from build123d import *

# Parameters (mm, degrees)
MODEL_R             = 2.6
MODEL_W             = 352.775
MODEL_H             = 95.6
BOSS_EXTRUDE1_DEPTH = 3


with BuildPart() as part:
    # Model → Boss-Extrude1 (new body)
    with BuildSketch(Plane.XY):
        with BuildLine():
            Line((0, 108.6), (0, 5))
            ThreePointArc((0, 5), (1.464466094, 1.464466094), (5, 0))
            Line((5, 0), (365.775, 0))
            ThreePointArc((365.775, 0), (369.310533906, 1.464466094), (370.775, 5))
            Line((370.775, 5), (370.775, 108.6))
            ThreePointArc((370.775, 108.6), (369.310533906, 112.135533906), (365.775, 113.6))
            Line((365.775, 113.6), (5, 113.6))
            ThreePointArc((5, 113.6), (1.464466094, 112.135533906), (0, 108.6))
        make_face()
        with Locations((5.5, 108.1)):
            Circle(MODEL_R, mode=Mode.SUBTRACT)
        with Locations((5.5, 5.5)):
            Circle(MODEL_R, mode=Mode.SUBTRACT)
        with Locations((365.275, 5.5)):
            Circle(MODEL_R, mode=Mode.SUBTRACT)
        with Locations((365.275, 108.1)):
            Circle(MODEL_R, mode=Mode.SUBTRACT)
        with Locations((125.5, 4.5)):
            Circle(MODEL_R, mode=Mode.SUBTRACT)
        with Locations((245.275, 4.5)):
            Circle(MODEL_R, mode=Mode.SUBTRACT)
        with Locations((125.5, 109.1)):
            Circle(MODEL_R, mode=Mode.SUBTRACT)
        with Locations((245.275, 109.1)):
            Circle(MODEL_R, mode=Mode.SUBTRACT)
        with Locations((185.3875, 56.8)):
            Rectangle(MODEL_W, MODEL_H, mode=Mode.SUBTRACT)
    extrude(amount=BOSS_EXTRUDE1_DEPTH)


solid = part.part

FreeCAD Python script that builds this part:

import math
import FreeCAD as App
import Part
import Sketcher
Q = App.Units.Quantity

doc = App.newDocument("Part")
body = doc.addObject("PartDesign::Body", "Body")

sketch1 = body.newObject("Sketcher::SketchObject", "Sketch")
sketch1.AttachmentSupport = (doc.getObject("XY_Plane"), [""])
sketch1.MapMode = "FlatFace"
sketch1.addGeometry([
    Part.LineSegment(App.Vector(0, 108.6, 0), App.Vector(0, 5, 0)),
    Part.ArcOfCircle(Part.Circle(App.Vector(5, 5, 0), App.Vector(0, 0, 1), 5), math.radians(180), math.radians(270)),
    Part.LineSegment(App.Vector(5, 0, 0), App.Vector(365.775, 0, 0)),
    Part.ArcOfCircle(Part.Circle(App.Vector(365.775, 5, 0), App.Vector(0, 0, 1), 5), math.radians(-90), math.radians(0)),
    Part.LineSegment(App.Vector(370.775, 5, 0), App.Vector(370.775, 108.6, 0)),
    Part.ArcOfCircle(Part.Circle(App.Vector(365.775, 108.6, 0), App.Vector(0, 0, 1), 5), math.radians(0), math.radians(90)),
    Part.LineSegment(App.Vector(365.775, 113.6, 0), App.Vector(5, 113.6, 0)),
    Part.ArcOfCircle(Part.Circle(App.Vector(5, 108.6, 0), App.Vector(0, 0, 1), 5), math.radians(90), math.radians(180)),
    Part.Circle(App.Vector(5.5, 5.5, 0), App.Vector(0, 0, 1), 2.6),
    Part.Circle(App.Vector(125.5, 4.5, 0), App.Vector(0, 0, 1), 2.6),
    Part.LineSegment(App.Vector(361.775, 9, 0), App.Vector(9, 9, 0)),
    Part.LineSegment(App.Vector(9, 9, 0), App.Vector(9, 104.6, 0)),
    Part.LineSegment(App.Vector(9, 104.6, 0), App.Vector(361.775, 104.6, 0)),
    Part.LineSegment(App.Vector(361.775, 104.6, 0), App.Vector(361.775, 9, 0)),
    Part.Circle(App.Vector(245.275, 4.5, 0), App.Vector(0, 0, 1), 2.6),
    Part.Circle(App.Vector(365.275, 5.5, 0), App.Vector(0, 0, 1), 2.6),
    Part.Circle(App.Vector(5.5, 108.1, 0), App.Vector(0, 0, 1), 2.6),
    Part.Circle(App.Vector(125.5, 109.1, 0), App.Vector(0, 0, 1), 2.6),
    Part.Circle(App.Vector(245.275, 109.1, 0), App.Vector(0, 0, 1), 2.6),
    Part.Circle(App.Vector(365.275, 108.1, 0), App.Vector(0, 0, 1), 2.6),
], False)
sketch1.addConstraint([
    Sketcher.Constraint("Tangent", 0, 2, 1, 1),
    Sketcher.Constraint("Tangent", 1, 2, 2, 1),
    Sketcher.Constraint("Tangent", 2, 2, 3, 1),
    Sketcher.Constraint("Tangent", 3, 2, 4, 1),
    Sketcher.Constraint("Tangent", 4, 2, 5, 1),
    Sketcher.Constraint("Tangent", 5, 2, 6, 1),
    Sketcher.Constraint("Tangent", 6, 2, 7, 1),
    Sketcher.Constraint("Tangent", 7, 2, 0, 1),
    Sketcher.Constraint("Coincident", 10, 2, 11, 1),
    Sketcher.Constraint("Coincident", 11, 2, 12, 1),
    Sketcher.Constraint("Coincident", 12, 2, 13, 1),
    Sketcher.Constraint("Coincident", 13, 2, 10, 1),
    Sketcher.Constraint("Vertical", 0),
    Sketcher.Constraint("Horizontal", 2),
    Sketcher.Constraint("Vertical", 4),
    Sketcher.Constraint("Horizontal", 6),
    Sketcher.Constraint("Horizontal", 10),
    Sketcher.Constraint("Vertical", 11),
    Sketcher.Constraint("Horizontal", 12),
    Sketcher.Constraint("Vertical", 13),
    Sketcher.Constraint("Equal", 1, 3),
    Sketcher.Constraint("Equal", 3, 5),
    Sketcher.Constraint("Equal", 5, 7),
    Sketcher.Constraint("Equal", 8, 9),
    Sketcher.Constraint("Equal", 9, 14),
    Sketcher.Constraint("Equal", 14, 15),
    Sketcher.Constraint("Equal", 15, 16),
    Sketcher.Constraint("Equal", 16, 17),
    Sketcher.Constraint("Equal", 17, 18),
    Sketcher.Constraint("Equal", 18, 19),
    Sketcher.Constraint("PointOnObject", 0, 2, -2),
    Sketcher.Constraint("PointOnObject", 1, 2, -1),
    Sketcher.Constraint("Horizontal", 9, 3, 14, 3),
    Sketcher.Constraint("Horizontal", 8, 3, 15, 3),
    Sketcher.Constraint("Horizontal", 17, 3, 18, 3),
    Sketcher.Constraint("Horizontal", 16, 3, 19, 3),
    Sketcher.Constraint("Vertical", 8, 3, 16, 3),
    Sketcher.Constraint("Vertical", 9, 3, 17, 3),
    Sketcher.Constraint("Vertical", 14, 3, 18, 3),
    Sketcher.Constraint("Vertical", 15, 3, 19, 3),
    Sketcher.Constraint("Radius", 1, Q("5 mm")),
    Sketcher.Constraint("Diameter", 8, Q("5.2 mm")),
    Sketcher.Constraint("DistanceY", 0, 2, 0, 1, Q("103.6 mm")),
    Sketcher.Constraint("DistanceY", 11, 1, 11, 2, Q("95.6 mm")),
    Sketcher.Constraint("DistanceX", -1, 1, 10, 2, Q("9 mm")),
    Sketcher.Constraint("DistanceY", -1, 1, 10, 2, Q("9 mm")),
    Sketcher.Constraint("DistanceX", 8, 3, 9, 3, Q("120 mm")),
    Sketcher.Constraint("DistanceY", 9, 3, 8, 3, Q("1 mm")),
    Sketcher.Constraint("DistanceX", 14, 3, 15, 3, Q("120 mm")),
    Sketcher.Constraint("DistanceY", 16, 3, 17, 3, Q("1 mm")),
    Sketcher.Constraint("DistanceX", 12, 2, 5, 3, Q("4 mm")),
    Sketcher.Constraint("DistanceX", -1, 1, 8, 3, Q("5.5 mm")),
    Sketcher.Constraint("DistanceY", -1, 1, 8, 3, Q("5.5 mm")),
    Sketcher.Constraint("DistanceY", -1, 1, 16, 3, Q("108.1 mm")),
    Sketcher.Constraint("DistanceX", 14, 3, 3, 3, Q("120.5 mm")),
    Sketcher.Constraint("DistanceX", 2, 1, 2, 2, Q("360.775 mm")),
])
pad1 = body.newObject("PartDesign::Pad", "Pad")
pad1.Profile = sketch1
pad1.Length = 3

doc.recompute()
